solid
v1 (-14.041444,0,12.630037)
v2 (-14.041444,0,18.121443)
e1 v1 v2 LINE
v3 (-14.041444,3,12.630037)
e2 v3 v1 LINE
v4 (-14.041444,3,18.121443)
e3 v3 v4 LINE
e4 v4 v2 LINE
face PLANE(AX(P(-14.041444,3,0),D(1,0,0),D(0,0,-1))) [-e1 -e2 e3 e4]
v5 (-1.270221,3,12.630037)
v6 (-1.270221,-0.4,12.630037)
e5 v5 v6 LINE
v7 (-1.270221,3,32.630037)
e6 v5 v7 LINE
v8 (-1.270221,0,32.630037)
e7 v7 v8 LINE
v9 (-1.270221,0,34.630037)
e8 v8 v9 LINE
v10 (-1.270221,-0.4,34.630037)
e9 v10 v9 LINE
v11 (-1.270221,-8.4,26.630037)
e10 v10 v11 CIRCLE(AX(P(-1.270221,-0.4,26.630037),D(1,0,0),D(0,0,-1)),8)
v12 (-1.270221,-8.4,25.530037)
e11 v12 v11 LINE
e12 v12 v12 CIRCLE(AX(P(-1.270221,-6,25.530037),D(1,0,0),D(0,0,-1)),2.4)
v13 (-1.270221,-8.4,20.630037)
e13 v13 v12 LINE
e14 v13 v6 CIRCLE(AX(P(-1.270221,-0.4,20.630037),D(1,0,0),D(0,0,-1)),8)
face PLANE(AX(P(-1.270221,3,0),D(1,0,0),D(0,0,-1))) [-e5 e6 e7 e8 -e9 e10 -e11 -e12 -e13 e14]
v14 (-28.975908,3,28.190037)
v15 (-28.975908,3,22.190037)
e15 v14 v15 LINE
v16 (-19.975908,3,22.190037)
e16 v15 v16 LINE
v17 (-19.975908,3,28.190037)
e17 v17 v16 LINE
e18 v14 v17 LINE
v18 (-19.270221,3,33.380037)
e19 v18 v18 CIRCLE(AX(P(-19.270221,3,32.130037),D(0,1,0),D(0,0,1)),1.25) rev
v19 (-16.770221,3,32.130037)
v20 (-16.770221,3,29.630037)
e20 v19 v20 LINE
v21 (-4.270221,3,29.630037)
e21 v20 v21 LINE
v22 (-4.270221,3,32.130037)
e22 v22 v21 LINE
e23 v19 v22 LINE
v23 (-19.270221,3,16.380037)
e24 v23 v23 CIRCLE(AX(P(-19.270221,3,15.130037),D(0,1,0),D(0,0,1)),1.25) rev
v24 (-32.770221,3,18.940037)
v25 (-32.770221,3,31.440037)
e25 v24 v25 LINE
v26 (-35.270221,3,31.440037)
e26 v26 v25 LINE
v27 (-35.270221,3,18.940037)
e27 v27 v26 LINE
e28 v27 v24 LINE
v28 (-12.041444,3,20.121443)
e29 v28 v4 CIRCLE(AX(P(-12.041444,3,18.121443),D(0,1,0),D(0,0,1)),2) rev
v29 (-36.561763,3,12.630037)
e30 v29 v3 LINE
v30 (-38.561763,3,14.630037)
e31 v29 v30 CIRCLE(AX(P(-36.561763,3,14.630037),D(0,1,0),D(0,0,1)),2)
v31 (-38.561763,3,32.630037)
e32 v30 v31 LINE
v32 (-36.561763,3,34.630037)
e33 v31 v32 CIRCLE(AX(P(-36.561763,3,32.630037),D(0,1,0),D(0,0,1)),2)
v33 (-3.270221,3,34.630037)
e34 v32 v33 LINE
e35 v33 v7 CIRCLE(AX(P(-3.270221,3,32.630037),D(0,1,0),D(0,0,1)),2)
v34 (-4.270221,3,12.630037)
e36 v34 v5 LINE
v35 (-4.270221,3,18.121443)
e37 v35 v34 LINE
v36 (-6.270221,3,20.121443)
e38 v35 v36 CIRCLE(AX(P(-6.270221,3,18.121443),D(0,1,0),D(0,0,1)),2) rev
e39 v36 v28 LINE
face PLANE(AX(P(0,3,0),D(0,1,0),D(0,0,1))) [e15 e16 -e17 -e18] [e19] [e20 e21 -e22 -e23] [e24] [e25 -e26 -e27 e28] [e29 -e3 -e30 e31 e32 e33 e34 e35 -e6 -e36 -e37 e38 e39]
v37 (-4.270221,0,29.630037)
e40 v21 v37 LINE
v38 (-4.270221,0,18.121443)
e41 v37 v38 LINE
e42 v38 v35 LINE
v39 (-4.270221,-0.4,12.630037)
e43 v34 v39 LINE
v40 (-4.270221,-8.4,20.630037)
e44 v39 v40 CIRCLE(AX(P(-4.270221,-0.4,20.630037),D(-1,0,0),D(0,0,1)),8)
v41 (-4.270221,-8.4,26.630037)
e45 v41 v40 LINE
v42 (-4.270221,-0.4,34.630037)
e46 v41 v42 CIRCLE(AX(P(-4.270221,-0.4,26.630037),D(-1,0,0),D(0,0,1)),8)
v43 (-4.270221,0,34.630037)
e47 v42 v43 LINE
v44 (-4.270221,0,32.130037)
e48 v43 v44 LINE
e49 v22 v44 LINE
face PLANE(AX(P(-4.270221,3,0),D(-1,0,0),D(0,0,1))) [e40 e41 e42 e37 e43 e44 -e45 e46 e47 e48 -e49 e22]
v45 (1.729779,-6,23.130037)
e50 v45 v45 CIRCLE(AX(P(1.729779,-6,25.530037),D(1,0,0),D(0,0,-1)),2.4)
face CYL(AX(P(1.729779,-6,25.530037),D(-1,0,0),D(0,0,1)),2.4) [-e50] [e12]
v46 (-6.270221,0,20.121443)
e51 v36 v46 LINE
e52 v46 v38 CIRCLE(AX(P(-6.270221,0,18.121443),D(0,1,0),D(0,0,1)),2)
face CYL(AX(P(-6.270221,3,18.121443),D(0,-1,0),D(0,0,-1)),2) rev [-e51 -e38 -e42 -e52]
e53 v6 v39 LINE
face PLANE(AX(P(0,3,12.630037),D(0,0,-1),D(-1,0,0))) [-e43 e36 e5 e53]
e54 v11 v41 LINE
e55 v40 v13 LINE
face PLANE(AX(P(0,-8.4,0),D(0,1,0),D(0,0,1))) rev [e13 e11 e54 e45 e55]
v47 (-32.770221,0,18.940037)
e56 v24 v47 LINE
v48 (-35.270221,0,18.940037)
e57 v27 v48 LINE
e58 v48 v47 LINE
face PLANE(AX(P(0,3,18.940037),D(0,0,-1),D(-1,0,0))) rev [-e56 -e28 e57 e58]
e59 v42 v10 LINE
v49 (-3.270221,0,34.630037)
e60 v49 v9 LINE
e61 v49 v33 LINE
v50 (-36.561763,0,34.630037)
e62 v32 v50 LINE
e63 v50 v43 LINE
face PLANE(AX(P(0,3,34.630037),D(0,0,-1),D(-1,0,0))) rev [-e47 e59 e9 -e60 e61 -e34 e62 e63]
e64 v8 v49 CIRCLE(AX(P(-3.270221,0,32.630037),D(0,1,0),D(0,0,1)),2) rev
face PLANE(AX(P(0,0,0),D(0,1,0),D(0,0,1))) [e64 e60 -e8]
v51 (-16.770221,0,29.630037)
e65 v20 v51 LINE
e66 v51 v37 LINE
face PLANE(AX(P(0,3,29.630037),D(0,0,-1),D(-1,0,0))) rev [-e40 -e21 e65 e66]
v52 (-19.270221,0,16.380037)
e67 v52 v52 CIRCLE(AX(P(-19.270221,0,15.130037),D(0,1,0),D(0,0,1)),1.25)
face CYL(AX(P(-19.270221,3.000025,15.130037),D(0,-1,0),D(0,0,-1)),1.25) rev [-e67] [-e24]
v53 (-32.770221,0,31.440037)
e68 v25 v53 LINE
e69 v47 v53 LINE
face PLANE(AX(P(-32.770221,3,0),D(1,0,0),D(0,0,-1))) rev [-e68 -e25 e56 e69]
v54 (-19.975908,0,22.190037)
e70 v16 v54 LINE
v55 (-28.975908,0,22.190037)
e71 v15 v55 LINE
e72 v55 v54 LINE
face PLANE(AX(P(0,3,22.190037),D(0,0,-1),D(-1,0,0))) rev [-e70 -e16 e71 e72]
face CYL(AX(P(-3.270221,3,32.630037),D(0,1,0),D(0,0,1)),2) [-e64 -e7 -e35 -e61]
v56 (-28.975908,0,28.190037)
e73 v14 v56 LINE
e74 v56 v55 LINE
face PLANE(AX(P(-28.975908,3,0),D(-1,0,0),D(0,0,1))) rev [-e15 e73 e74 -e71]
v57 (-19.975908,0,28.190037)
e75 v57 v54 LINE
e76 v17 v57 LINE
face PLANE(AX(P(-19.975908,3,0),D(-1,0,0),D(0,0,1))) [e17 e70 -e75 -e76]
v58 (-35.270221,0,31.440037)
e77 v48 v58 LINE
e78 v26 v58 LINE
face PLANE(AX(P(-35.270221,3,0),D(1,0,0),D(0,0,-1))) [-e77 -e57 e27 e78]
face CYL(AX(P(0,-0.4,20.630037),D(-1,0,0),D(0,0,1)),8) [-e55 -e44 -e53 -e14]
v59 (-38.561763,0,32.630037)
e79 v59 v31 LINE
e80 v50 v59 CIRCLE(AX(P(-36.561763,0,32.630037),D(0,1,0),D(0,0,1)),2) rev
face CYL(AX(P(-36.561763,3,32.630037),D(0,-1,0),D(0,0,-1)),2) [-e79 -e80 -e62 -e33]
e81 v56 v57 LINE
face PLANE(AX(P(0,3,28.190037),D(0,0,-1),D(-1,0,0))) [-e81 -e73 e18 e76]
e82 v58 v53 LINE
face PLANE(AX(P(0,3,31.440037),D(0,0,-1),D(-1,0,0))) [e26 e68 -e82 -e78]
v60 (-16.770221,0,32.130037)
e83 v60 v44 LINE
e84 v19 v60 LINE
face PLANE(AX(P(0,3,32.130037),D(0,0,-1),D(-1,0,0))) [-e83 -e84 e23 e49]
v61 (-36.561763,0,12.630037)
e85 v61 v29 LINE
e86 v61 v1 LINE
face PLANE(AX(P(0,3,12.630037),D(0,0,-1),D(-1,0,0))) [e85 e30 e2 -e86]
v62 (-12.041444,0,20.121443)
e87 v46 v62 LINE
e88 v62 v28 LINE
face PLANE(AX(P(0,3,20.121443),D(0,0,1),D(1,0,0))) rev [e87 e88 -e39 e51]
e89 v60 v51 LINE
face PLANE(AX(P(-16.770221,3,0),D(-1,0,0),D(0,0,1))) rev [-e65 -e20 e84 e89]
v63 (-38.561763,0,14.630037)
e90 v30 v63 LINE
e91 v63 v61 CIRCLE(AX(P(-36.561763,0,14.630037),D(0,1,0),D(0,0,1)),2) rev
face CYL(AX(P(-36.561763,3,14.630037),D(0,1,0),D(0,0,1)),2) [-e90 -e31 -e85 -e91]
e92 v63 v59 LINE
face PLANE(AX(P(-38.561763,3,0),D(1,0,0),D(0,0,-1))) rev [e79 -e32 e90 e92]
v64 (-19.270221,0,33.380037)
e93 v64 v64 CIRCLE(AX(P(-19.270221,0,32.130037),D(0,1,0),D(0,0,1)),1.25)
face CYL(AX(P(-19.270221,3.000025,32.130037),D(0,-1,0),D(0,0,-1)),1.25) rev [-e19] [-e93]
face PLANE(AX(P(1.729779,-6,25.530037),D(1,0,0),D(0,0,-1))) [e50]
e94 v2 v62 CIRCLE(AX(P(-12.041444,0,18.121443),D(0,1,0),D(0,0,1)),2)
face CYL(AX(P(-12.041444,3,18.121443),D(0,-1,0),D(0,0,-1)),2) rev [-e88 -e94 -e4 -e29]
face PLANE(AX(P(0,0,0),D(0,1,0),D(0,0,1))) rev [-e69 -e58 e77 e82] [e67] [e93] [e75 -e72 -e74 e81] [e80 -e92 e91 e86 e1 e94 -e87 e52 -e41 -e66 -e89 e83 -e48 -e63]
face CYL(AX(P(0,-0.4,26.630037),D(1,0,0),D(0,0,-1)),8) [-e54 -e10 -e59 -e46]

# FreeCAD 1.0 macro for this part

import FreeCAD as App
import Part
import Sketcher
Q = App.Units.Quantity


def edges_at(feature, points):
    """Names of the edges that pass closest to the given points."""
    edges = feature.Shape.Edges
    near = lambda p: min(range(len(edges)), key=lambda i: edges[i].distToShape(Part.Vertex(*p))[0])
    return sorted({f"Edge{near(p) + 1}" for p in points})


def add_polygon(sketch, points):
    """Adds a closed chain of lines whose ends are joined by coincident constraints."""
    first, n = sketch.GeometryCount, len(points)
    for a, b in zip(points, points[1:] + points[:1]):
        sketch.addGeometry(Part.LineSegment(App.Vector(*a, 0), App.Vector(*b, 0)), False)
    for i in range(n):
        sketch.addConstraint(Sketcher.Constraint("Coincident", first + i, 2, first + (i + 1) % n, 1))

doc = App.newDocument("Part")
body = doc.addObject("PartDesign::Body", "Body")

sketch1 = body.newObject("Sketcher::SketchObject", "Sketch")
sketch1.AttachmentSupport = (doc.getObject("XZ_Plane"), [""])
sketch1.MapMode = "FlatFace"
add_polygon(sketch1, [(-14, 20.1), (-14, 12.6), (-38.6, 12.6), (-38.6, 34.6), (-1.3, 34.6), (-1.3, 12.6), (-4.3, 12.6), (-4.3, 20.1)])
add_polygon(sketch1, [(-4.3, 32.1), (-16.8, 32.1), (-16.8, 29.6), (-4.3, 29.6)])
add_polygon(sketch1, [(-32.8, 31.4), (-35.3, 31.4), (-35.3, 18.9), (-32.8, 18.9)])
add_polygon(sketch1, [(-20, 28.2), (-29, 28.2), (-29, 22.2), (-20, 22.2)])
sketch1.addConstraint([
    Sketcher.Constraint("Vertical", 0),
    Sketcher.Constraint("Horizontal", 1),
    Sketcher.Constraint("Vertical", 2),
    Sketcher.Constraint("Horizontal", 3),
    Sketcher.Constraint("Vertical", 4),
    Sketcher.Constraint("Horizontal", 5),
    Sketcher.Constraint("Vertical", 6),
    Sketcher.Constraint("Horizontal", 7),
    Sketcher.Constraint("Horizontal", 8),
    Sketcher.Constraint("Vertical", 9),
    Sketcher.Constraint("Horizontal", 10),
    Sketcher.Constraint("Vertical", 11),
    Sketcher.Constraint("Horizontal", 12),
    Sketcher.Constraint("Vertical", 13),
    Sketcher.Constraint("Horizontal", 14),
    Sketcher.Constraint("Vertical", 15),
    Sketcher.Constraint("Horizontal", 16),
    Sketcher.Constraint("Vertical", 17),
    Sketcher.Constraint("Horizontal", 18),
    Sketcher.Constraint("Vertical", 19),
    Sketcher.Constraint("Horizontal", 1, 2, 4, 2),
    Sketcher.Constraint("Vertical", 6, 2, 10, 2),
    Sketcher.Constraint("Equal", 14, 9),
    Sketcher.Constraint("Equal", 10, 13),
    Sketcher.Constraint("DistanceX", 5, 2, 5, 1, Q("3 mm")),
    Sketcher.Constraint("DistanceX", 16, 2, 16, 1, Q("9 mm")),
    Sketcher.Constraint("DistanceY", 2, 1, 2, 2, Q("22 mm")),
    Sketcher.Constraint("DistanceY", 17, 2, 17, 1, Q("6 mm")),
    Sketcher.Constraint("DistanceX", 8, 2, 8, 1, Q("12.5 mm")),
    Sketcher.Constraint("DistanceX", 12, 2, 12, 1, Q("2.5 mm")),
    Sketcher.Constraint("DistanceY", 9, 2, 3, 2, Q("5 mm")),
    Sketcher.Constraint("DistanceX", 15, 2, 8, 2, Q("16 mm")),
    Sketcher.Constraint("DistanceY", 12, 2, 2, 2, Q("3.19 mm")),
    Sketcher.Constraint("DistanceY", 16, 2, 15, 2, Q("3.25 mm")),
    Sketcher.Constraint("DistanceX", 1, 2, 1, 1, Q("24.520319 mm")),
    Sketcher.Constraint("DistanceX", 3, 1, 3, 2, Q("37.291543 mm")),
    Sketcher.Constraint("DistanceY", 0, 2, 0, 1, Q("7.491405 mm")),
    Sketcher.Constraint("DistanceX", 3, 2, -1, 1, Q("1.270221 mm")),
    Sketcher.Constraint("DistanceY", -1, 1, 0, 2, Q("12.630037 mm")),
    Sketcher.Constraint("DistanceX", 16, 2, -1, 1, Q("28.975908 mm")),
])
pad1 = body.newObject("PartDesign::Pad", "Pad")
pad1.Profile = sketch1
pad1.Length = 3
pad1.Reversed = True
doc.recompute()

fillet = body.newObject("PartDesign::Fillet", "Fillet")
fillet.Base = (pad1, edges_at(pad1, [
    (-14.041, 1.5, 20.121),
    (-4.27, 1.5, 20.121),
    (-1.27, 1.5, 34.63),
    (-38.562, 1.5, 34.63),
    (-38.562, 1.5, 12.63),
]))
fillet.Radius = 2

sketch2 = body.newObject("Sketcher::SketchObject", "Sketch001")
sketch2.AttachmentSupport = (doc.getObject("XZ_Plane"), [""])
sketch2.MapMode = "FlatFace"
add_polygon(sketch2, [(-4.3, 12.6), (-4.3, 34.6), (-1.3, 34.6), (-1.3, 12.6)])
sketch2.addConstraint([
    Sketcher.Constraint("Vertical", 0),
    Sketcher.Constraint("Horizontal", 1),
    Sketcher.Constraint("Vertical", 2),
    Sketcher.Constraint("Horizontal", 3),
    Sketcher.Constraint("DistanceX", 1, 1, 1, 2, Q("3 mm")),
    Sketcher.Constraint("DistanceY", 0, 1, 0, 2, Q("22 mm")),
    Sketcher.Constraint("DistanceX", 0, 2, -1, 1, Q("4.270221 mm")),
    Sketcher.Constraint("DistanceY", -1, 1, 0, 2, Q("34.630037 mm")),
])
pad2 = body.newObject("PartDesign::Pad", "Pad001")
pad2.Profile = sketch2
pad2.Length = 8.4

sketch3 = body.newObject("Sketcher::SketchObject", "Sketch002")
sketch3.AttachmentSupport = (doc.getObject("YZ_Plane"), [""])
sketch3.MapMode = "FlatFace"
sketch3.AttachmentOffset = App.Placement(App.Vector(0, 0, -1.270221), App.Rotation())
sketch3.addGeometry(Part.Circle(App.Vector(-6, 25.5, 0), App.Vector(0, 0, 1), 2.4), False)
sketch3.addConstraint([
    Sketcher.Constraint("Diameter", 0, Q("4.8 mm")),
    Sketcher.Constraint("DistanceX", 0, 3, -1, 1, Q("6 mm")),
    Sketcher.Constraint("DistanceY", -1, 1, 0, 3, Q("25.530037 mm")),
])
pad3 = body.newObject("PartDesign::Pad", "Pad002")
pad3.Profile = sketch3
pad3.Length = 3
doc.recompute()

fillet2 = body.newObject("PartDesign::Fillet", "Fillet001")
fillet2.Base = (pad3, edges_at(pad3, [(-2.77, -8.4, 12.63), (-2.77, -8.4, 34.63)]))
fillet2.Radius = 8

sketch4 = body.newObject("Sketcher::SketchObject", "Sketch003")
sketch4.AttachmentSupport = (doc.getObject("XZ_Plane"), [""])
sketch4.MapMode = "FlatFace"
sketch4.addGeometry([
    Part.Circle(App.Vector(-19.3, 32.1, 0), App.Vector(0, 0, 1), 1.2),
    Part.Circle(App.Vector(-19.3, 15.1, 0), App.Vector(0, 0, 1), 1.2),
], False)
sketch4.addConstraint([
    Sketcher.Constraint("Equal", 0, 1),
    Sketcher.Constraint("Vertical", 0, 3, 1, 3),
    Sketcher.Constraint("Diameter", 0, Q("2.5 mm")),
    Sketcher.Constraint("DistanceY", 1, 3, 0, 3, Q("17 mm")),
    Sketcher.Constraint("DistanceX", 0, 3, -1, 1, Q("19.270221 mm")),
    Sketcher.Constraint("DistanceY", -1, 1, 0, 3, Q("32.130037 mm")),
])
pocket1 = body.newObject("PartDesign::Pocket", "Pocket")
pocket1.Profile = sketch4
pocket1.Type = "ThroughAll"

doc.recompute()
